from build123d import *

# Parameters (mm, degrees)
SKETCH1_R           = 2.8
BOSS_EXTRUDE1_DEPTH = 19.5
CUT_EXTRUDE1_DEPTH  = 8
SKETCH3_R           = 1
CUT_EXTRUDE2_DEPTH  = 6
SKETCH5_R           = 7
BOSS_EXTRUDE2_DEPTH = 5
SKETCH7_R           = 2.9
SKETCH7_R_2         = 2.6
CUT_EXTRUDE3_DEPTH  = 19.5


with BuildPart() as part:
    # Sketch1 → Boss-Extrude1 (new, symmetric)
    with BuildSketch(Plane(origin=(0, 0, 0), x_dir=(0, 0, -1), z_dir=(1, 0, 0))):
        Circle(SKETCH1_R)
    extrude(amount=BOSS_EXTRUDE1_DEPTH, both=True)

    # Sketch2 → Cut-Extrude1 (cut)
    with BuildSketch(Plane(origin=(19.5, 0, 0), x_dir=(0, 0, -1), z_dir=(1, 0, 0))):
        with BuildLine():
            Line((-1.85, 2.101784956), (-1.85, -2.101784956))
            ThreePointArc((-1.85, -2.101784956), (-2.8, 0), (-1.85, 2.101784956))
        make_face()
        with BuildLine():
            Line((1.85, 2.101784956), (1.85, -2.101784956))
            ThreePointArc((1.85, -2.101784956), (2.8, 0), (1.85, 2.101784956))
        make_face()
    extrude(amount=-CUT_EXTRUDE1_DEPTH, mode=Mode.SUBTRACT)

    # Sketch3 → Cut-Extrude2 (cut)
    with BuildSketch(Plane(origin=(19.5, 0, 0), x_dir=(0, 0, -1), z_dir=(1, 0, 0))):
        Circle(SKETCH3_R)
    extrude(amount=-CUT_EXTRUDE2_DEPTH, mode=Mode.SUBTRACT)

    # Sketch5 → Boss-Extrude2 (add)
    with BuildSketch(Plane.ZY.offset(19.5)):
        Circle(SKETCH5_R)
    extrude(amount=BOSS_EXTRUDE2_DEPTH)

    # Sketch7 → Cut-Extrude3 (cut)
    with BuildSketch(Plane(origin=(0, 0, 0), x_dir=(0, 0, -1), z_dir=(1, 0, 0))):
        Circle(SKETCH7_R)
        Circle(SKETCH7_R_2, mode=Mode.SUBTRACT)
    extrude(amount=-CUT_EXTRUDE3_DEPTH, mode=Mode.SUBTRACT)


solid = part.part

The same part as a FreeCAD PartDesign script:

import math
import FreeCAD as App
import Part
import Sketcher
Q = App.Units.Quantity

doc = App.newDocument("Part")
body = doc.addObject("PartDesign::Body", "Body")

sketch1 = body.newObject("Sketcher::SketchObject", "Sketch")
sketch1.AttachmentSupport = (doc.getObject("YZ_Plane"), [""])
sketch1.MapMode = "FlatFace"
sketch1.addGeometry(Part.Circle(App.Vector(0, 0, 0), App.Vector(0, 0, 1), 2.8), False)
sketch1.addConstraint([
    Sketcher.Constraint("Coincident", 0, 3, -1, 1),
    Sketcher.Constraint("Diameter", 0, Q("5.6 mm")),
])
pad1 = body.newObject("PartDesign::Pad", "Pad")
pad1.Profile = sketch1
pad1.Length = 39
pad1.Midplane = True

sketch2 = body.newObject("Sketcher::SketchObject", "Sketch001")
sketch2.AttachmentSupport = (doc.getObject("YZ_Plane"), [""])
sketch2.MapMode = "FlatFace"
sketch2.AttachmentOffset = App.Placement(App.Vector(0, 0, 19.5), App.Rotation())
sketch2.addGeometry([
    Part.LineSegment(App.Vector(-2.1, 1.9, 0), App.Vector(2.1, 1.9, 0)),
    Part.ArcOfCircle(Part.Circle(App.Vector(0, 0, 0), App.Vector(0, 0, 1), 2.8), math.radians(41), math.radians(139)),
    Part.LineSegment(App.Vector(2.1, -1.9, 0), App.Vector(-2.1, -1.9, 0)),
    Part.ArcOfCircle(Part.Circle(App.Vector(0, 0, 0), App.Vector(0, 0, 1), 2.8), math.radians(-139), math.radians(-41)),
], False)
sketch2.addConstraint([
    Sketcher.Constraint("Coincident", 0, 1, 1, 2),
    Sketcher.Constraint("Coincident", 1, 1, 0, 2),
    Sketcher.Constraint("Coincident", 2, 1, 3, 2),
    Sketcher.Constraint("Coincident", 3, 1, 2, 2),
    Sketcher.Constraint("Horizontal", 0),
    Sketcher.Constraint("Horizontal", 2),
    Sketcher.Constraint("Coincident", 1, 3, -1, 1),
    Sketcher.Constraint("Coincident", 3, 3, -1, 1),
    Sketcher.Constraint("Equal", 1, 3),
    Sketcher.Constraint("Vertical", 1, 1, 2, 1),
    Sketcher.Constraint("Radius", 1, Q("2.8 mm")),
    Sketcher.Constraint("DistanceY", 2, 1, 1, 1, Q("3.7 mm")),
])
pocket1 = body.newObject("PartDesign::Pocket", "Pocket")
pocket1.Profile = sketch2
pocket1.Length = 8

sketch3 = body.newObject("Sketcher::SketchObject", "Sketch002")
sketch3.AttachmentSupport = (doc.getObject("YZ_Plane"), [""])
sketch3.MapMode = "FlatFace"
sketch3.AttachmentOffset = App.Placement(App.Vector(0, 0, 19.5), App.Rotation())
sketch3.addGeometry(Part.Circle(App.Vector(0, 0, 0), App.Vector(0, 0, 1), 1), False)
sketch3.addConstraint([
    Sketcher.Constraint("Coincident", 0, 3, -1, 1),
    Sketcher.Constraint("Diameter", 0, Q("2 mm")),
])
pocket2 = body.newObject("PartDesign::Pocket", "Pocket001")
pocket2.Profile = sketch3
pocket2.Length = 6

sketch4 = body.newObject("Sketcher::SketchObject", "Sketch003")
sketch4.AttachmentSupport = (doc.getObject("YZ_Plane"), [""])
sketch4.MapMode = "FlatFace"
sketch4.AttachmentOffset = App.Placement(App.Vector(0, 0, -19.5), App.Rotation())
sketch4.addGeometry(Part.Circle(App.Vector(0, 0, 0), App.Vector(0, 0, 1), 7), False)
sketch4.addConstraint([
    Sketcher.Constraint("Coincident", 0, 3, -1, 1),
    Sketcher.Constraint("Diameter", 0, Q("14 mm")),
])
pad2 = body.newObject("PartDesign::Pad", "Pad001")
pad2.Profile = sketch4
pad2.Length = 5
pad2.Reversed = True

sketch5 = body.newObject("Sketcher::SketchObject", "Sketch004")
sketch5.AttachmentSupport = (doc.getObject("YZ_Plane"), [""])
sketch5.MapMode = "FlatFace"
sketch5.addGeometry([
    Part.Circle(App.Vector(0, 0, 0), App.Vector(0, 0, 1), 2.9),
    Part.Circle(App.Vector(0, 0, 0), App.Vector(0, 0, 1), 2.6),
], False)
sketch5.addConstraint([
    Sketcher.Constraint("Coincident", 0, 3, -1, 1),
    Sketcher.Constraint("Coincident", 1, 3, -1, 1),
    Sketcher.Constraint("Diameter", 0, Q("5.8 mm")),
    Sketcher.Constraint("Diameter", 1, Q("5.2 mm")),
])
pocket3 = body.newObject("PartDesign::Pocket", "Pocket002")
pocket3.Profile = sketch5
pocket3.Length = 19.5

doc.recompute()
